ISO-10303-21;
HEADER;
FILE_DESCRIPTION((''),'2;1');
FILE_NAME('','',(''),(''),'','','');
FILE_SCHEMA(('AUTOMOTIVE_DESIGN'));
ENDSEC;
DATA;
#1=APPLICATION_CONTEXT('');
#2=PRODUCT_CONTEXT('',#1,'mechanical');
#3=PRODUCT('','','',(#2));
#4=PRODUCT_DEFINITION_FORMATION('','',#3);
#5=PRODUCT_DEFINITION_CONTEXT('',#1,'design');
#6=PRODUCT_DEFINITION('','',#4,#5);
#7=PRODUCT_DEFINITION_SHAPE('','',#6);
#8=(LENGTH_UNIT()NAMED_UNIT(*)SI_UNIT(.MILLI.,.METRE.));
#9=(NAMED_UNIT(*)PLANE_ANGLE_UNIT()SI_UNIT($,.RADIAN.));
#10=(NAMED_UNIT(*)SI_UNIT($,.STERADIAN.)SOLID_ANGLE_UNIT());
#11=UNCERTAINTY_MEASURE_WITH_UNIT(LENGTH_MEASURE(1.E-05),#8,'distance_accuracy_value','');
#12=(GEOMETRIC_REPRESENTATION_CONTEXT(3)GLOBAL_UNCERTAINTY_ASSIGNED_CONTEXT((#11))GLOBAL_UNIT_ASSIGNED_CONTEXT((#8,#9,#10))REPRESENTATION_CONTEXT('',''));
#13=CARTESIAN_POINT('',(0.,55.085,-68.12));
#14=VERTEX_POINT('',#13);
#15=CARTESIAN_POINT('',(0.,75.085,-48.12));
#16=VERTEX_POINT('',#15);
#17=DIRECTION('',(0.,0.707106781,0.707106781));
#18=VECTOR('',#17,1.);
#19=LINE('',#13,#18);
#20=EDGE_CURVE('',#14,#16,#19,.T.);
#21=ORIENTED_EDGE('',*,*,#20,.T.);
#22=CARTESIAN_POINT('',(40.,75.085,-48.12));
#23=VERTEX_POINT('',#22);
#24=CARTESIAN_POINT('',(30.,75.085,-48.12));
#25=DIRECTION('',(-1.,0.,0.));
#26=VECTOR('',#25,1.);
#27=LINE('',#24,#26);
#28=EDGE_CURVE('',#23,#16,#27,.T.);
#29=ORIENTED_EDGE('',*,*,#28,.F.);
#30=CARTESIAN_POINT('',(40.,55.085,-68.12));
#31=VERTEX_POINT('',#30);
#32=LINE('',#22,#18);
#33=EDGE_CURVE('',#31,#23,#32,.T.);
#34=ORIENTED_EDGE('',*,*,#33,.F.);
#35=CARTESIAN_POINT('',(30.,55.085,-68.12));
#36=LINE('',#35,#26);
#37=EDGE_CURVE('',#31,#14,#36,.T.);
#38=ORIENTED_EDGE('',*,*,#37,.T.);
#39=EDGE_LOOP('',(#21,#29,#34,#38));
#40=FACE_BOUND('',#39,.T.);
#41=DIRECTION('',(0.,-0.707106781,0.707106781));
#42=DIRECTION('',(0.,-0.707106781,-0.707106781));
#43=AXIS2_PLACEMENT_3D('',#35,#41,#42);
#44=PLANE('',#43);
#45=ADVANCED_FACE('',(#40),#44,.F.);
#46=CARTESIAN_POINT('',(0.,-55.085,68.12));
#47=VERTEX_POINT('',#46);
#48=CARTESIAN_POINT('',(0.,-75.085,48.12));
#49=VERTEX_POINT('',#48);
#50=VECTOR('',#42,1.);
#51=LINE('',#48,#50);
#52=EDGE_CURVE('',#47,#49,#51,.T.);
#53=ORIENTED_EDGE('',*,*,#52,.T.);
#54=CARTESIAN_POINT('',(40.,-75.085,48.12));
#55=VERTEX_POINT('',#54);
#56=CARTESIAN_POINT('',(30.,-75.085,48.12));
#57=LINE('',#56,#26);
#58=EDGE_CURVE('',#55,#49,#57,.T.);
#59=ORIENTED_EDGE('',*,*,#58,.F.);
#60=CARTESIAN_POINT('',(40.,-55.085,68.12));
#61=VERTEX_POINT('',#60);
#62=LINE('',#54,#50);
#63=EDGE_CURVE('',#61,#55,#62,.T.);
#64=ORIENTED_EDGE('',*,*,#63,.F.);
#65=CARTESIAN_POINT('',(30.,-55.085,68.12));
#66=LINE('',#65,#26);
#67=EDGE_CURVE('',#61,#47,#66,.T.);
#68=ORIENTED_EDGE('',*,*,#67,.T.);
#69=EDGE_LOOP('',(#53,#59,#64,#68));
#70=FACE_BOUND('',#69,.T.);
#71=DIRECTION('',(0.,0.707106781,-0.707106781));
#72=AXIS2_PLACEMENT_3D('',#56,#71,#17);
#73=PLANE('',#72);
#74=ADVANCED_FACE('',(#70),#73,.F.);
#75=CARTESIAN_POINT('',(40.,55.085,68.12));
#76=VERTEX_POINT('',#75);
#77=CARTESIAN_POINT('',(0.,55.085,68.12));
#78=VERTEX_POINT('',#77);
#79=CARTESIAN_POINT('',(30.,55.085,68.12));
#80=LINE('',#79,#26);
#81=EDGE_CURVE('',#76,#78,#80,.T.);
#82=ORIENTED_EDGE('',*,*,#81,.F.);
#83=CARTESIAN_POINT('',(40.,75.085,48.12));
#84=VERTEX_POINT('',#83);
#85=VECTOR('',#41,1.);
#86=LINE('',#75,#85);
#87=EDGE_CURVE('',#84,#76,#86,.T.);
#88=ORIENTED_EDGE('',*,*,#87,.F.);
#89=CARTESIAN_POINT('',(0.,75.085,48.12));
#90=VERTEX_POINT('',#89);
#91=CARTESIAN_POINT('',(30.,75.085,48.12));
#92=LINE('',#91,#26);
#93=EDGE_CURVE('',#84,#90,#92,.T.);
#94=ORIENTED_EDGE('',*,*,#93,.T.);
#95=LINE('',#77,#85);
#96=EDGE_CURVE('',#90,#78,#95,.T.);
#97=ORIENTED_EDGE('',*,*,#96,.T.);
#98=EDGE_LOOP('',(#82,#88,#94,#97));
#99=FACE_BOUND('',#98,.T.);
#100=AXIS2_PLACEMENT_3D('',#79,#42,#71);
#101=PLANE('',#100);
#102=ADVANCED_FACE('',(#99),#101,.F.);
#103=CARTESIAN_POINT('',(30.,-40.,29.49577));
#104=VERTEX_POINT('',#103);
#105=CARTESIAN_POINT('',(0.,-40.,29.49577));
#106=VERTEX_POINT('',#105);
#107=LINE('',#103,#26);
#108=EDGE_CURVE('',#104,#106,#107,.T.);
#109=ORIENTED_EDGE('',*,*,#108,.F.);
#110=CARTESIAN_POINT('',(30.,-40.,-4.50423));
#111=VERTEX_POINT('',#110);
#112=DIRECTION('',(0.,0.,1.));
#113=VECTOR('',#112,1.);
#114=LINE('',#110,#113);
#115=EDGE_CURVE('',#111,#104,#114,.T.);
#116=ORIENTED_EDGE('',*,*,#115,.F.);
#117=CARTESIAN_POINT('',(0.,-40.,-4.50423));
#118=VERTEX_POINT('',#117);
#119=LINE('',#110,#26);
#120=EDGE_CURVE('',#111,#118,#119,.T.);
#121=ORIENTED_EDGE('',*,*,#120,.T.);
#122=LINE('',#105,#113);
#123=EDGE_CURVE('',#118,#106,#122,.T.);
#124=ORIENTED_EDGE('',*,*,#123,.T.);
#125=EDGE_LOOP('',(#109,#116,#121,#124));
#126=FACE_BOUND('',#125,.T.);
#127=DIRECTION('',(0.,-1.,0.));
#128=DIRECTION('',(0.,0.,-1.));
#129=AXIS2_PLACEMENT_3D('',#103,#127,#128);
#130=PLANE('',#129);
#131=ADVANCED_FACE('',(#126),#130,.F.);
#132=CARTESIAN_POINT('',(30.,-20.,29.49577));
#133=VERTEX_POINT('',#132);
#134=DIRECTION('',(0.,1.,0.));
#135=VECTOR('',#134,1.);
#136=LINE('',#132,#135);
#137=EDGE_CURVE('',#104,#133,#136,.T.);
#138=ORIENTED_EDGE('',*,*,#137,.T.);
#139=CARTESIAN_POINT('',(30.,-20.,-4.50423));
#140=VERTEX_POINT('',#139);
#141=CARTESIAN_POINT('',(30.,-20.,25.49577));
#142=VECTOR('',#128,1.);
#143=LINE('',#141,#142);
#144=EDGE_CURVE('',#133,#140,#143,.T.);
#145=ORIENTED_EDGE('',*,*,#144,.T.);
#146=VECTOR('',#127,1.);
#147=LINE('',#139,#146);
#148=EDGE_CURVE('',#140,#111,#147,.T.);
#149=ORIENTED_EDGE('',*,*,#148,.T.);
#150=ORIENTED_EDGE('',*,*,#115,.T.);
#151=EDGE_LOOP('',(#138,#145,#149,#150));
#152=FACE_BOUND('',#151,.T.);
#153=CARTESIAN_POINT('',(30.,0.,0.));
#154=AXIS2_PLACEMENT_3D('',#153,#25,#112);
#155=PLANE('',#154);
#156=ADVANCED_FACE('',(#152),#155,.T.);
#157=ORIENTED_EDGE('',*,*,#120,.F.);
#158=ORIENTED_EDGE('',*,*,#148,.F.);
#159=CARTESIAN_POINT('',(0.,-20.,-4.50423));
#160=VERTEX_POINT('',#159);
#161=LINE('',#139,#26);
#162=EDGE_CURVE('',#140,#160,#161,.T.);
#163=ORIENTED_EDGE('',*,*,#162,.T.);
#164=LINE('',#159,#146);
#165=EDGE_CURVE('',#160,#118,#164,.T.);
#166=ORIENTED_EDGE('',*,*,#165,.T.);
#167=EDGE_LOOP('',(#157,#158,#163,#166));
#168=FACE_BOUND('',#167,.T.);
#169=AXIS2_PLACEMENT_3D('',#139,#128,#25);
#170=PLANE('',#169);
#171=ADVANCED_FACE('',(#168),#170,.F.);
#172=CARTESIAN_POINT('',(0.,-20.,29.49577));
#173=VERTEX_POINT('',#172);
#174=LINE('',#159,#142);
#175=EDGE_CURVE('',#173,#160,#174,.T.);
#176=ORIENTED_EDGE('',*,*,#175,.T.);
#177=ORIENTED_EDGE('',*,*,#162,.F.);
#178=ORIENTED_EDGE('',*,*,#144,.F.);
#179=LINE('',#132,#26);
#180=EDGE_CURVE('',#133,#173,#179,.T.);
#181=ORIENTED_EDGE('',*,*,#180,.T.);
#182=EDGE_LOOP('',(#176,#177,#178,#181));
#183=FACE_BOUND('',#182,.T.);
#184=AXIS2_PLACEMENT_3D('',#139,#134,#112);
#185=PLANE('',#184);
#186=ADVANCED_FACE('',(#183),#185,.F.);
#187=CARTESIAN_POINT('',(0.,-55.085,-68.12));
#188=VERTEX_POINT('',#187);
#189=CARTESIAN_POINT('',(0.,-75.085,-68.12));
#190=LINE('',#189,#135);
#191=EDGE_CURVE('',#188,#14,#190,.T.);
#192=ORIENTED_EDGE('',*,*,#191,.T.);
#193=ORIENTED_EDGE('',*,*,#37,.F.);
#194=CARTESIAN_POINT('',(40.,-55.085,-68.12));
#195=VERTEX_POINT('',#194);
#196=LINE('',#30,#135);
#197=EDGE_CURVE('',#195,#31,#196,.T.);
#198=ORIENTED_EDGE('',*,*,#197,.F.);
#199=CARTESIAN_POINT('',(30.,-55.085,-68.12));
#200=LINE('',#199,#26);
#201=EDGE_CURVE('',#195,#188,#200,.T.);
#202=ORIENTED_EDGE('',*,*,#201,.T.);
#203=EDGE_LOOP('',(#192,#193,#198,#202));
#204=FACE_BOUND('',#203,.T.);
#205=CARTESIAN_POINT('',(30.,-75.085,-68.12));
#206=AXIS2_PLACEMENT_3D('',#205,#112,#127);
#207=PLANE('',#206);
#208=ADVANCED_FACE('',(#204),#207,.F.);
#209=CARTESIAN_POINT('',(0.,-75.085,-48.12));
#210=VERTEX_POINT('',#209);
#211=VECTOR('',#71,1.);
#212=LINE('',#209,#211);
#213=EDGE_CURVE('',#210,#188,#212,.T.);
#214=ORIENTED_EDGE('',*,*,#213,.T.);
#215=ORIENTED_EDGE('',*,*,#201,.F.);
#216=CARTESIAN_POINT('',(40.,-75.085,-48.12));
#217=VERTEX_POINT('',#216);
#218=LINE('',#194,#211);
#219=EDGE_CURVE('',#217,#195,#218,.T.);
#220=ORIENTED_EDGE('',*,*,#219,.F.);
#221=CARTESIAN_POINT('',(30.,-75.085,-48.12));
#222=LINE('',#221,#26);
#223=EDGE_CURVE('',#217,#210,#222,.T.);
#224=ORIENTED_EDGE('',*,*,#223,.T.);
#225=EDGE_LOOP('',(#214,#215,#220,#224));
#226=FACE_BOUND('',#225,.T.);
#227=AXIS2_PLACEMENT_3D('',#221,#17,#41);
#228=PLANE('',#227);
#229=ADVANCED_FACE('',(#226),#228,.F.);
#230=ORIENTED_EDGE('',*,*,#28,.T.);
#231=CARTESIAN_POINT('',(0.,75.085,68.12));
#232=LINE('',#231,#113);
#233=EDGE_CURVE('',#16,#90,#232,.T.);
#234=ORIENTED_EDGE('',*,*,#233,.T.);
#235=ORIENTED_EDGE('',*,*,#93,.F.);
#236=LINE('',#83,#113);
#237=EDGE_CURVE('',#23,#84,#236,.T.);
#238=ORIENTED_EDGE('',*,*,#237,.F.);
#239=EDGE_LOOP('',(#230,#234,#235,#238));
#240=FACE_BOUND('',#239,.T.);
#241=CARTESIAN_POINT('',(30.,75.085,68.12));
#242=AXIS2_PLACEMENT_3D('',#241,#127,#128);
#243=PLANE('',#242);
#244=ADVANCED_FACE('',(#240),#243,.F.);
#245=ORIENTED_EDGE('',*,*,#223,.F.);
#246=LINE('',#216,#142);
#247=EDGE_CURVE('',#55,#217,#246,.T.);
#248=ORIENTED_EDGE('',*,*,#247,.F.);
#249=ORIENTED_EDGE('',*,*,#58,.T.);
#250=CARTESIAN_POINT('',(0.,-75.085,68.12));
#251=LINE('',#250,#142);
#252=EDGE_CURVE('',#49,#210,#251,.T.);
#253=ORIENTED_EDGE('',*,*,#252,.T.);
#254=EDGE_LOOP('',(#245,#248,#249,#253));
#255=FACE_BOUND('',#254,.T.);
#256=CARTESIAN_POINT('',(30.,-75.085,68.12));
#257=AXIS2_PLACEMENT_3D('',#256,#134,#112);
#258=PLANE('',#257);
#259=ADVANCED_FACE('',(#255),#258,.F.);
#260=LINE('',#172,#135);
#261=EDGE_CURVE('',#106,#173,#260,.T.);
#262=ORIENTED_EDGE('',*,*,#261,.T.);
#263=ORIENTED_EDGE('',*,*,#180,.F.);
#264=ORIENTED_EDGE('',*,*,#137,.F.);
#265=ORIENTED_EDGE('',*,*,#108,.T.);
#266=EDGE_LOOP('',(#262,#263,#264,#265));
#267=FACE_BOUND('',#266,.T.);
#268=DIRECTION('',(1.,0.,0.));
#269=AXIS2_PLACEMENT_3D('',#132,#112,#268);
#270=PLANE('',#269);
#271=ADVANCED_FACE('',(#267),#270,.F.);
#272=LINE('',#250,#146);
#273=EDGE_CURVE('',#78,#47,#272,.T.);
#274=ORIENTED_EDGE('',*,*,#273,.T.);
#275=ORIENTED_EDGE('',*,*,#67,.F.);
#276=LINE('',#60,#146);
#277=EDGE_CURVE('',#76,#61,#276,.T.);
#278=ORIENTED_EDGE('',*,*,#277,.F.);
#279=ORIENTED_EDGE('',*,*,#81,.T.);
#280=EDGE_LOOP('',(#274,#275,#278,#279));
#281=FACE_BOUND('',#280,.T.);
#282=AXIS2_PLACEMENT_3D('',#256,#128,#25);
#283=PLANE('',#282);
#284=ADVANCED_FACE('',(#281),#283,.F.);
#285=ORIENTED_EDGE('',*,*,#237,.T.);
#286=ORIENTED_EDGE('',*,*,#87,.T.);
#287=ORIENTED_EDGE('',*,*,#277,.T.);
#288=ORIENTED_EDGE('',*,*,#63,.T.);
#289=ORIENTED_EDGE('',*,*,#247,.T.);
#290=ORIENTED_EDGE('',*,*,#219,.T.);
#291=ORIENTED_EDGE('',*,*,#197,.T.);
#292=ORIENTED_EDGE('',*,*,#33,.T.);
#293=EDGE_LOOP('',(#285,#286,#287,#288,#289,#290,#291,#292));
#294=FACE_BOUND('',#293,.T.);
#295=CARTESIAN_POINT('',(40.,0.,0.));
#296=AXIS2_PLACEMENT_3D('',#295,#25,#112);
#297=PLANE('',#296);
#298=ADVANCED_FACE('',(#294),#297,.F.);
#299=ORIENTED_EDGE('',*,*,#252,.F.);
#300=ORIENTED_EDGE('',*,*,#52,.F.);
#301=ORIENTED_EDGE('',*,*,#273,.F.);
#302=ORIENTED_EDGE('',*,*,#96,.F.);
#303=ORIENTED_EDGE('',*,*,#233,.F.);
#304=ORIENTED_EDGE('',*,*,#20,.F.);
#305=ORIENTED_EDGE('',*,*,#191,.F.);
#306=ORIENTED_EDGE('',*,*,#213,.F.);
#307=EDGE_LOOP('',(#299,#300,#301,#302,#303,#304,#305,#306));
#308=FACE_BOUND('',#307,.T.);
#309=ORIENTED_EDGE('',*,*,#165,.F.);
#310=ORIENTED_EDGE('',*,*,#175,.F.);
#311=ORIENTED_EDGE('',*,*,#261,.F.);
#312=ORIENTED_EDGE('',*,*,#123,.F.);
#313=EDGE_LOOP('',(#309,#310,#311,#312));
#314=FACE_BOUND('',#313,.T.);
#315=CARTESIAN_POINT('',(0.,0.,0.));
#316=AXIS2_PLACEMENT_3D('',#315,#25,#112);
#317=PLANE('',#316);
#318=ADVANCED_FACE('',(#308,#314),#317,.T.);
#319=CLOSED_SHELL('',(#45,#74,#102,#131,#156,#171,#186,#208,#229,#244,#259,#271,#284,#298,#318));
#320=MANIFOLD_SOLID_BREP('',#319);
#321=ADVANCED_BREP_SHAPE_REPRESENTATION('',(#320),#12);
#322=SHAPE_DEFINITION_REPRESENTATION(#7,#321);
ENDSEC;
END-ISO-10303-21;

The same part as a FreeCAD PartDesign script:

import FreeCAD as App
import Part
import Sketcher
Q = App.Units.Quantity

doc = App.newDocument("Part")
params = doc.addObject("Spreadsheet::Sheet", "Params")
for row, (alias, value) in enumerate([
    ("sketch1_width", "150.17 mm"),
    ("sketch1_height", "136.24 mm"),
    ("pad1_length", "30 mm"),
    ("sketch2_width", "20 mm"),
    ("sketch2_height", "34 mm"),
    ("pocket1_length", "30 mm"),
    ("sketch3_width", "110.17 mm"),
    ("sketch3_height", "96.24 mm"),
    ("pad2_length", "10 mm"),
], start=1):
    params.set(f"A{row}", alias)
    params.set(f"B{row}", "=" + value)
    params.setAlias(f"B{row}", alias)

body = doc.addObject("PartDesign::Body", "Body")

sketch1 = body.newObject("Sketcher::SketchObject", "Sketch")
sketch1.AttachmentSupport = (doc.getObject("YZ_Plane"), [""])
sketch1.MapMode = "FlatFace"
sketch1.addGeometry(Part.LineSegment(App.Vector(75.085, 68.12, 0), App.Vector(-75.085, 68.12, 0)), False)
sketch1.addGeometry(Part.LineSegment(App.Vector(-75.085, 68.12, 0), App.Vector(-75.085, -68.12, 0)), False)
sketch1.addGeometry(Part.LineSegment(App.Vector(-75.085, -68.12, 0), App.Vector(75.085, -68.12, 0)), False)
sketch1.addGeometry(Part.LineSegment(App.Vector(75.085, -68.12, 0), App.Vector(75.085, 68.12, 0)), False)
sketch1.addConstraint(Sketcher.Constraint("Coincident", 0, 2, 1, 1))
sketch1.addConstraint(Sketcher.Constraint("Coincident", 1, 2, 2, 1))
sketch1.addConstraint(Sketcher.Constraint("Coincident", 2, 2, 3, 1))
sketch1.addConstraint(Sketcher.Constraint("Coincident", 3, 2, 0, 1))
sketch1.addConstraint(Sketcher.Constraint("Horizontal", 0))
sketch1.addConstraint(Sketcher.Constraint("Vertical", 1))
sketch1.addConstraint(Sketcher.Constraint("Horizontal", 2))
sketch1.addConstraint(Sketcher.Constraint("Vertical", 3))
sketch1.addConstraint(Sketcher.Constraint("Symmetric", 0, 2, 2, 2, -1, 1))
sketch1.addConstraint(Sketcher.Constraint("DistanceX", 0, 2, 0, 1, Q("150.17 mm")))
sketch1.addConstraint(Sketcher.Constraint("DistanceY", 1, 2, 1, 1, Q("136.24 mm")))
sketch1.setExpression("Constraints[9]", "Params.sketch1_width")
sketch1.setExpression("Constraints[10]", "Params.sketch1_height")
pad1 = body.newObject("PartDesign::Pad", "Pad")
pad1.Profile = sketch1
pad1.setExpression("Length", "Params.pad1_length")

sketch2 = body.newObject("Sketcher::SketchObject", "Sketch001")
sketch2.AttachmentSupport = (doc.getObject("YZ_Plane"), [""])
sketch2.MapMode = "FlatFace"
sketch2.addGeometry(Part.LineSegment(App.Vector(75.085, -48.12, 0), App.Vector(75.085, -68.12, 0)), False)
sketch2.addGeometry(Part.LineSegment(App.Vector(75.085, -68.12, 0), App.Vector(55.085, -68.12, 0)), False)
sketch2.addGeometry(Part.LineSegment(App.Vector(55.085, -68.12, 0), App.Vector(75.085, -48.12, 0)), False)
sketch2.addGeometry(Part.LineSegment(App.Vector(55.085, 68.12, 0), App.Vector(75.085, 68.12, 0)), False)
sketch2.addGeometry(Part.LineSegment(App.Vector(75.085, 68.12, 0), App.Vector(75.085, 48.12, 0)), False)
sketch2.addGeometry(Part.LineSegment(App.Vector(75.085, 48.12, 0), App.Vector(55.085, 68.12, 0)), False)
sketch2.addGeometry(Part.LineSegment(App.Vector(-55.085, -68.12, 0), App.Vector(-75.085, -68.12, 0)), False)
sketch2.addGeometry(Part.LineSegment(App.Vector(-75.085, -68.12, 0), App.Vector(-75.085, -48.12, 0)), False)
sketch2.addGeometry(Part.LineSegment(App.Vector(-75.085, -48.12, 0), App.Vector(-55.085, -68.12, 0)), False)
sketch2.addGeometry(Part.LineSegment(App.Vector(-75.085, 68.12, 0), App.Vector(-55.085, 68.12, 0)), False)
sketch2.addGeometry(Part.LineSegment(App.Vector(-55.085, 68.12, 0), App.Vector(-75.085, 48.12, 0)), False)
sketch2.addGeometry(Part.LineSegment(App.Vector(-75.085, 48.12, 0), App.Vector(-75.085, 68.12, 0)), False)
sketch2.addGeometry(Part.LineSegment(App.Vector(-20, 29.49577, 0), App.Vector(-20, -4.50423, 0)), False)
sketch2.addGeometry(Part.LineSegment(App.Vector(-20, -4.50423, 0), App.Vector(-40, -4.50423, 0)), False)
sketch2.addGeometry(Part.LineSegment(App.Vector(-40, -4.50423, 0), App.Vector(-40, 29.49577, 0)), False)
sketch2.addGeometry(Part.LineSegment(App.Vector(-40, 29.49577, 0), App.Vector(-20, 29.49577, 0)), False)
sketch2.addConstraint(Sketcher.Constraint("Coincident", 0, 2, 1, 1))
sketch2.addConstraint(Sketcher.Constraint("Coincident", 1, 2, 2, 1))
sketch2.addConstraint(Sketcher.Constraint("Coincident", 2, 2, 0, 1))
sketch2.addConstraint(Sketcher.Constraint("Coincident", 3, 2, 4, 1))
sketch2.addConstraint(Sketcher.Constraint("Coincident", 4, 2, 5, 1))
sketch2.addConstraint(Sketcher.Constraint("Coincident", 5, 2, 3, 1))
sketch2.addConstraint(Sketcher.Constraint("Coincident", 6, 2, 7, 1))
sketch2.addConstraint(Sketcher.Constraint("Coincident", 7, 2, 8, 1))
sketch2.addConstraint(Sketcher.Constraint("Coincident", 8, 2, 6, 1))
sketch2.addConstraint(Sketcher.Constraint("Coincident", 9, 2, 10, 1))
sketch2.addConstraint(Sketcher.Constraint("Coincident", 10, 2, 11, 1))
sketch2.addConstraint(Sketcher.Constraint("Coincident", 11, 2, 9, 1))
sketch2.addConstraint(Sketcher.Constraint("Coincident", 12, 2, 13, 1))
sketch2.addConstraint(Sketcher.Constraint("Coincident", 13, 2, 14, 1))
sketch2.addConstraint(Sketcher.Constraint("Coincident", 14, 2, 15, 1))
sketch2.addConstraint(Sketcher.Constraint("Coincident", 15, 2, 12, 1))
sketch2.addConstraint(Sketcher.Constraint("Vertical", 0))
sketch2.addConstraint(Sketcher.Constraint("Horizontal", 1))
sketch2.addConstraint(Sketcher.Constraint("Horizontal", 3))
sketch2.addConstraint(Sketcher.Constraint("Vertical", 4))
sketch2.addConstraint(Sketcher.Constraint("Horizontal", 6))
sketch2.addConstraint(Sketcher.Constraint("Vertical", 7))
sketch2.addConstraint(Sketcher.Constraint("Horizontal", 9))
sketch2.addConstraint(Sketcher.Constraint("Vertical", 11))
sketch2.addConstraint(Sketcher.Constraint("Vertical", 12))
sketch2.addConstraint(Sketcher.Constraint("Horizontal", 13))
sketch2.addConstraint(Sketcher.Constraint("Vertical", 14))
sketch2.addConstraint(Sketcher.Constraint("Horizontal", 15))
sketch2.addConstraint(Sketcher.Constraint("Symmetric", 3, 2, 6, 2, -1, 1))
sketch2.addConstraint(Sketcher.Constraint("Symmetric", 1, 2, 9, 2, -1, 1))
sketch2.addConstraint(Sketcher.Constraint("Symmetric", 2, 2, 10, 2, -1, 1))
sketch2.addConstraint(Sketcher.Constraint("Symmetric", 0, 2, 6, 2, -2))
sketch2.addConstraint(Sketcher.Constraint("Perpendicular", 2, 5))
sketch2.addConstraint(Sketcher.Constraint("Parallel", 5, 8))
sketch2.addConstraint(Sketcher.Constraint("Horizontal", 2, 2, 7, 2))
sketch2.addConstraint(Sketcher.Constraint("Horizontal", 4, 2, 10, 2))
sketch2.addConstraint(Sketcher.Constraint("Vertical", 1, 2, 5, 2))
sketch2.addConstraint(Sketcher.Constraint("Equal", 9, 13))
sketch2.addConstraint(Sketcher.Constraint("DistanceX", 1, 2, 1, 1, Q("20 mm")))
sketch2.addConstraint(Sketcher.Constraint("DistanceY", 12, 2, 12, 1, Q("34 mm")))
sketch2.addConstraint(Sketcher.Constraint("DistanceX", 12, 2, -1, 1, Q("20 mm")))
sketch2.addConstraint(Sketcher.Constraint("DistanceY", 0, 2, -1, 1, Q("68.12 mm")))
sketch2.addConstraint(Sketcher.Constraint("DistanceX", 6, 2, 1, 2, Q("130.17 mm")))
sketch2.addConstraint(Sketcher.Constraint("DistanceY", 12, 2, -1, 1, Q("4.50423 mm")))
sketch2.setExpression("Constraints[38]", "Params.sketch2_width")
sketch2.setExpression("Constraints[39]", "Params.sketch2_height")
pocket1 = body.newObject("PartDesign::Pocket", "Pocket")
pocket1.Profile = sketch2
pocket1.setExpression("Length", "Params.pocket1_length")
pocket1.Reversed = True

sketch3 = body.newObject("Sketcher::SketchObject", "Sketch002")
sketch3.AttachmentSupport = (doc.getObject("YZ_Plane"), [""])
sketch3.MapMode = "FlatFace"
sketch3.AttachmentOffset = App.Placement(App.Vector(0, 0, 30), App.Rotation())
sketch3.addGeometry(Part.LineSegment(App.Vector(75.085, 48.12, 0), App.Vector(55.085, 68.12, 0)), False)
sketch3.addGeometry(Part.LineSegment(App.Vector(55.085, 68.12, 0), App.Vector(-55.085, 68.12, 0)), False)
sketch3.addGeometry(Part.LineSegment(App.Vector(-55.085, 68.12, 0), App.Vector(-75.085, 48.12, 0)), False)
sketch3.addGeometry(Part.LineSegment(App.Vector(-75.085, 48.12, 0), App.Vector(-75.085, -48.12, 0)), False)
sketch3.addGeometry(Part.LineSegment(App.Vector(-75.085, -48.12, 0), App.Vector(-55.085, -68.12, 0)), False)
sketch3.addGeometry(Part.LineSegment(App.Vector(-55.085, -68.12, 0), App.Vector(55.085, -68.12, 0)), False)
sketch3.addGeometry(Part.LineSegment(App.Vector(55.085, -68.12, 0), App.Vector(75.085, -48.12, 0)), False)
sketch3.addGeometry(Part.LineSegment(App.Vector(75.085, -48.12, 0), App.Vector(75.085, 48.12, 0)), False)
sketch3.addConstraint(Sketcher.Constraint("Coincident", 0, 2, 1, 1))
sketch3.addConstraint(Sketcher.Constraint("Coincident", 1, 2, 2, 1))
sketch3.addConstraint(Sketcher.Constraint("Coincident", 2, 2, 3, 1))
sketch3.addConstraint(Sketcher.Constraint("Coincident", 3, 2, 4, 1))
sketch3.addConstraint(Sketcher.Constraint("Coincident", 4, 2, 5, 1))
sketch3.addConstraint(Sketcher.Constraint("Coincident", 5, 2, 6, 1))
sketch3.addConstraint(Sketcher.Constraint("Coincident", 6, 2, 7, 1))
sketch3.addConstraint(Sketcher.Constraint("Coincident", 7, 2, 0, 1))
sketch3.addConstraint(Sketcher.Constraint("Horizontal", 1))
sketch3.addConstraint(Sketcher.Constraint("Vertical", 3))
sketch3.addConstraint(Sketcher.Constraint("Horizontal", 5))
sketch3.addConstraint(Sketcher.Constraint("Vertical", 7))
sketch3.addConstraint(Sketcher.Constraint("Symmetric", 0, 2, 4, 2, -1, 1))
sketch3.addConstraint(Sketcher.Constraint("Symmetric", 2, 2, 6, 2, -1, 1))
sketch3.addConstraint(Sketcher.Constraint("Perpendicular", 0, 2))
sketch3.addConstraint(Sketcher.Constraint("Perpendicular", 2, 4))
sketch3.addConstraint(Sketcher.Constraint("Perpendicular", 4, 6))
sketch3.addConstraint(Sketcher.Constraint("Horizontal", 3, 2, 6, 2))
sketch3.addConstraint(Sketcher.Constraint("Vertical", 1, 2, 4, 2))
sketch3.addConstraint(Sketcher.Constraint("DistanceX", 2, 2, 1, 2, Q("20 mm")))
sketch3.addConstraint(Sketcher.Constraint("DistanceX", 1, 2, 1, 1, Q("110.17 mm")))
sketch3.addConstraint(Sketcher.Constraint("DistanceY", 3, 2, 3, 1, Q("96.24 mm")))
sketch3.setExpression("Constraints[20]", "Params.sketch3_width")
sketch3.setExpression("Constraints[21]", "Params.sketch3_height")
pad2 = body.newObject("PartDesign::Pad", "Pad001")
pad2.Profile = sketch3
pad2.setExpression("Length", "Params.pad2_length")

doc.recompute()
